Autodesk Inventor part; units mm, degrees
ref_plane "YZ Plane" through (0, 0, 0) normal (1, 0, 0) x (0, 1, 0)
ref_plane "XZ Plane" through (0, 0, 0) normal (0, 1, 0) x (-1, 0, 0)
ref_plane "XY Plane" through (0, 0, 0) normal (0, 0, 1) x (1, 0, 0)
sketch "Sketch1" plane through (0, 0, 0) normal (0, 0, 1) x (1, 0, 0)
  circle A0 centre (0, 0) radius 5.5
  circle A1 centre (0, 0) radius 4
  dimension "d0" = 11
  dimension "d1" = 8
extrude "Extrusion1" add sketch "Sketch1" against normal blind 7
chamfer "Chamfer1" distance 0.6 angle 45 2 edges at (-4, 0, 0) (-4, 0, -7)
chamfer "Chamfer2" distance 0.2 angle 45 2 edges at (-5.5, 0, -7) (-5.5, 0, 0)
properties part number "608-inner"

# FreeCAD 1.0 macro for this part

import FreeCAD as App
import Part
import Sketcher

V = App.Vector


def edges_at(feature, points):
    """Names of the edges that pass closest to the given points."""
    edges = feature.Shape.Edges
    near = lambda p: min(range(len(edges)), key=lambda i: edges[i].distToShape(Part.Vertex(*p))[0])
    return sorted({f"Edge{near(p) + 1}" for p in points})

doc = App.newDocument("Part")
body = doc.addObject("PartDesign::Body", "Body")

# Sketch on XY plane
sketch1 = body.newObject("Sketcher::SketchObject", "Sketch")
sketch1.AttachmentSupport = (doc.getObject("XY_Plane"), [""])
sketch1.MapMode = "FlatFace"
sketch1.addGeometry(Part.Circle(V(0, 0, 0), V(0, 0, 1), 5.5), False)
sketch1.addGeometry(Part.Circle(V(0, 0, 0), V(0, 0, 1), 4), False)
sketch1.addConstraint(Sketcher.Constraint("Coincident", 0, 3, -1, 1))
sketch1.addConstraint(Sketcher.Constraint("Coincident", 1, 3, -1, 1))
sketch1.addConstraint(Sketcher.Constraint("Diameter", 0, 11.0))
sketch1.addConstraint(Sketcher.Constraint("Diameter", 1, 8.0))
pad1 = body.newObject("PartDesign::Pad", "Pad")
pad1.Profile = sketch1
pad1.Length = 7
pad1.Reversed = True
doc.recompute()

chamfer = body.newObject("PartDesign::Chamfer", "Chamfer")
chamfer.Base = (pad1, edges_at(pad1, [(-4, 0, 0), (-4, 0, -7)]))
chamfer.Size = 0.6
doc.recompute()

chamfer2 = body.newObject("PartDesign::Chamfer", "Chamfer001")
chamfer2.Base = (chamfer, edges_at(chamfer, [(-5.5, 0, -7), (-5.5, 0, 0)]))
chamfer2.Size = 0.2

doc.recompute()
